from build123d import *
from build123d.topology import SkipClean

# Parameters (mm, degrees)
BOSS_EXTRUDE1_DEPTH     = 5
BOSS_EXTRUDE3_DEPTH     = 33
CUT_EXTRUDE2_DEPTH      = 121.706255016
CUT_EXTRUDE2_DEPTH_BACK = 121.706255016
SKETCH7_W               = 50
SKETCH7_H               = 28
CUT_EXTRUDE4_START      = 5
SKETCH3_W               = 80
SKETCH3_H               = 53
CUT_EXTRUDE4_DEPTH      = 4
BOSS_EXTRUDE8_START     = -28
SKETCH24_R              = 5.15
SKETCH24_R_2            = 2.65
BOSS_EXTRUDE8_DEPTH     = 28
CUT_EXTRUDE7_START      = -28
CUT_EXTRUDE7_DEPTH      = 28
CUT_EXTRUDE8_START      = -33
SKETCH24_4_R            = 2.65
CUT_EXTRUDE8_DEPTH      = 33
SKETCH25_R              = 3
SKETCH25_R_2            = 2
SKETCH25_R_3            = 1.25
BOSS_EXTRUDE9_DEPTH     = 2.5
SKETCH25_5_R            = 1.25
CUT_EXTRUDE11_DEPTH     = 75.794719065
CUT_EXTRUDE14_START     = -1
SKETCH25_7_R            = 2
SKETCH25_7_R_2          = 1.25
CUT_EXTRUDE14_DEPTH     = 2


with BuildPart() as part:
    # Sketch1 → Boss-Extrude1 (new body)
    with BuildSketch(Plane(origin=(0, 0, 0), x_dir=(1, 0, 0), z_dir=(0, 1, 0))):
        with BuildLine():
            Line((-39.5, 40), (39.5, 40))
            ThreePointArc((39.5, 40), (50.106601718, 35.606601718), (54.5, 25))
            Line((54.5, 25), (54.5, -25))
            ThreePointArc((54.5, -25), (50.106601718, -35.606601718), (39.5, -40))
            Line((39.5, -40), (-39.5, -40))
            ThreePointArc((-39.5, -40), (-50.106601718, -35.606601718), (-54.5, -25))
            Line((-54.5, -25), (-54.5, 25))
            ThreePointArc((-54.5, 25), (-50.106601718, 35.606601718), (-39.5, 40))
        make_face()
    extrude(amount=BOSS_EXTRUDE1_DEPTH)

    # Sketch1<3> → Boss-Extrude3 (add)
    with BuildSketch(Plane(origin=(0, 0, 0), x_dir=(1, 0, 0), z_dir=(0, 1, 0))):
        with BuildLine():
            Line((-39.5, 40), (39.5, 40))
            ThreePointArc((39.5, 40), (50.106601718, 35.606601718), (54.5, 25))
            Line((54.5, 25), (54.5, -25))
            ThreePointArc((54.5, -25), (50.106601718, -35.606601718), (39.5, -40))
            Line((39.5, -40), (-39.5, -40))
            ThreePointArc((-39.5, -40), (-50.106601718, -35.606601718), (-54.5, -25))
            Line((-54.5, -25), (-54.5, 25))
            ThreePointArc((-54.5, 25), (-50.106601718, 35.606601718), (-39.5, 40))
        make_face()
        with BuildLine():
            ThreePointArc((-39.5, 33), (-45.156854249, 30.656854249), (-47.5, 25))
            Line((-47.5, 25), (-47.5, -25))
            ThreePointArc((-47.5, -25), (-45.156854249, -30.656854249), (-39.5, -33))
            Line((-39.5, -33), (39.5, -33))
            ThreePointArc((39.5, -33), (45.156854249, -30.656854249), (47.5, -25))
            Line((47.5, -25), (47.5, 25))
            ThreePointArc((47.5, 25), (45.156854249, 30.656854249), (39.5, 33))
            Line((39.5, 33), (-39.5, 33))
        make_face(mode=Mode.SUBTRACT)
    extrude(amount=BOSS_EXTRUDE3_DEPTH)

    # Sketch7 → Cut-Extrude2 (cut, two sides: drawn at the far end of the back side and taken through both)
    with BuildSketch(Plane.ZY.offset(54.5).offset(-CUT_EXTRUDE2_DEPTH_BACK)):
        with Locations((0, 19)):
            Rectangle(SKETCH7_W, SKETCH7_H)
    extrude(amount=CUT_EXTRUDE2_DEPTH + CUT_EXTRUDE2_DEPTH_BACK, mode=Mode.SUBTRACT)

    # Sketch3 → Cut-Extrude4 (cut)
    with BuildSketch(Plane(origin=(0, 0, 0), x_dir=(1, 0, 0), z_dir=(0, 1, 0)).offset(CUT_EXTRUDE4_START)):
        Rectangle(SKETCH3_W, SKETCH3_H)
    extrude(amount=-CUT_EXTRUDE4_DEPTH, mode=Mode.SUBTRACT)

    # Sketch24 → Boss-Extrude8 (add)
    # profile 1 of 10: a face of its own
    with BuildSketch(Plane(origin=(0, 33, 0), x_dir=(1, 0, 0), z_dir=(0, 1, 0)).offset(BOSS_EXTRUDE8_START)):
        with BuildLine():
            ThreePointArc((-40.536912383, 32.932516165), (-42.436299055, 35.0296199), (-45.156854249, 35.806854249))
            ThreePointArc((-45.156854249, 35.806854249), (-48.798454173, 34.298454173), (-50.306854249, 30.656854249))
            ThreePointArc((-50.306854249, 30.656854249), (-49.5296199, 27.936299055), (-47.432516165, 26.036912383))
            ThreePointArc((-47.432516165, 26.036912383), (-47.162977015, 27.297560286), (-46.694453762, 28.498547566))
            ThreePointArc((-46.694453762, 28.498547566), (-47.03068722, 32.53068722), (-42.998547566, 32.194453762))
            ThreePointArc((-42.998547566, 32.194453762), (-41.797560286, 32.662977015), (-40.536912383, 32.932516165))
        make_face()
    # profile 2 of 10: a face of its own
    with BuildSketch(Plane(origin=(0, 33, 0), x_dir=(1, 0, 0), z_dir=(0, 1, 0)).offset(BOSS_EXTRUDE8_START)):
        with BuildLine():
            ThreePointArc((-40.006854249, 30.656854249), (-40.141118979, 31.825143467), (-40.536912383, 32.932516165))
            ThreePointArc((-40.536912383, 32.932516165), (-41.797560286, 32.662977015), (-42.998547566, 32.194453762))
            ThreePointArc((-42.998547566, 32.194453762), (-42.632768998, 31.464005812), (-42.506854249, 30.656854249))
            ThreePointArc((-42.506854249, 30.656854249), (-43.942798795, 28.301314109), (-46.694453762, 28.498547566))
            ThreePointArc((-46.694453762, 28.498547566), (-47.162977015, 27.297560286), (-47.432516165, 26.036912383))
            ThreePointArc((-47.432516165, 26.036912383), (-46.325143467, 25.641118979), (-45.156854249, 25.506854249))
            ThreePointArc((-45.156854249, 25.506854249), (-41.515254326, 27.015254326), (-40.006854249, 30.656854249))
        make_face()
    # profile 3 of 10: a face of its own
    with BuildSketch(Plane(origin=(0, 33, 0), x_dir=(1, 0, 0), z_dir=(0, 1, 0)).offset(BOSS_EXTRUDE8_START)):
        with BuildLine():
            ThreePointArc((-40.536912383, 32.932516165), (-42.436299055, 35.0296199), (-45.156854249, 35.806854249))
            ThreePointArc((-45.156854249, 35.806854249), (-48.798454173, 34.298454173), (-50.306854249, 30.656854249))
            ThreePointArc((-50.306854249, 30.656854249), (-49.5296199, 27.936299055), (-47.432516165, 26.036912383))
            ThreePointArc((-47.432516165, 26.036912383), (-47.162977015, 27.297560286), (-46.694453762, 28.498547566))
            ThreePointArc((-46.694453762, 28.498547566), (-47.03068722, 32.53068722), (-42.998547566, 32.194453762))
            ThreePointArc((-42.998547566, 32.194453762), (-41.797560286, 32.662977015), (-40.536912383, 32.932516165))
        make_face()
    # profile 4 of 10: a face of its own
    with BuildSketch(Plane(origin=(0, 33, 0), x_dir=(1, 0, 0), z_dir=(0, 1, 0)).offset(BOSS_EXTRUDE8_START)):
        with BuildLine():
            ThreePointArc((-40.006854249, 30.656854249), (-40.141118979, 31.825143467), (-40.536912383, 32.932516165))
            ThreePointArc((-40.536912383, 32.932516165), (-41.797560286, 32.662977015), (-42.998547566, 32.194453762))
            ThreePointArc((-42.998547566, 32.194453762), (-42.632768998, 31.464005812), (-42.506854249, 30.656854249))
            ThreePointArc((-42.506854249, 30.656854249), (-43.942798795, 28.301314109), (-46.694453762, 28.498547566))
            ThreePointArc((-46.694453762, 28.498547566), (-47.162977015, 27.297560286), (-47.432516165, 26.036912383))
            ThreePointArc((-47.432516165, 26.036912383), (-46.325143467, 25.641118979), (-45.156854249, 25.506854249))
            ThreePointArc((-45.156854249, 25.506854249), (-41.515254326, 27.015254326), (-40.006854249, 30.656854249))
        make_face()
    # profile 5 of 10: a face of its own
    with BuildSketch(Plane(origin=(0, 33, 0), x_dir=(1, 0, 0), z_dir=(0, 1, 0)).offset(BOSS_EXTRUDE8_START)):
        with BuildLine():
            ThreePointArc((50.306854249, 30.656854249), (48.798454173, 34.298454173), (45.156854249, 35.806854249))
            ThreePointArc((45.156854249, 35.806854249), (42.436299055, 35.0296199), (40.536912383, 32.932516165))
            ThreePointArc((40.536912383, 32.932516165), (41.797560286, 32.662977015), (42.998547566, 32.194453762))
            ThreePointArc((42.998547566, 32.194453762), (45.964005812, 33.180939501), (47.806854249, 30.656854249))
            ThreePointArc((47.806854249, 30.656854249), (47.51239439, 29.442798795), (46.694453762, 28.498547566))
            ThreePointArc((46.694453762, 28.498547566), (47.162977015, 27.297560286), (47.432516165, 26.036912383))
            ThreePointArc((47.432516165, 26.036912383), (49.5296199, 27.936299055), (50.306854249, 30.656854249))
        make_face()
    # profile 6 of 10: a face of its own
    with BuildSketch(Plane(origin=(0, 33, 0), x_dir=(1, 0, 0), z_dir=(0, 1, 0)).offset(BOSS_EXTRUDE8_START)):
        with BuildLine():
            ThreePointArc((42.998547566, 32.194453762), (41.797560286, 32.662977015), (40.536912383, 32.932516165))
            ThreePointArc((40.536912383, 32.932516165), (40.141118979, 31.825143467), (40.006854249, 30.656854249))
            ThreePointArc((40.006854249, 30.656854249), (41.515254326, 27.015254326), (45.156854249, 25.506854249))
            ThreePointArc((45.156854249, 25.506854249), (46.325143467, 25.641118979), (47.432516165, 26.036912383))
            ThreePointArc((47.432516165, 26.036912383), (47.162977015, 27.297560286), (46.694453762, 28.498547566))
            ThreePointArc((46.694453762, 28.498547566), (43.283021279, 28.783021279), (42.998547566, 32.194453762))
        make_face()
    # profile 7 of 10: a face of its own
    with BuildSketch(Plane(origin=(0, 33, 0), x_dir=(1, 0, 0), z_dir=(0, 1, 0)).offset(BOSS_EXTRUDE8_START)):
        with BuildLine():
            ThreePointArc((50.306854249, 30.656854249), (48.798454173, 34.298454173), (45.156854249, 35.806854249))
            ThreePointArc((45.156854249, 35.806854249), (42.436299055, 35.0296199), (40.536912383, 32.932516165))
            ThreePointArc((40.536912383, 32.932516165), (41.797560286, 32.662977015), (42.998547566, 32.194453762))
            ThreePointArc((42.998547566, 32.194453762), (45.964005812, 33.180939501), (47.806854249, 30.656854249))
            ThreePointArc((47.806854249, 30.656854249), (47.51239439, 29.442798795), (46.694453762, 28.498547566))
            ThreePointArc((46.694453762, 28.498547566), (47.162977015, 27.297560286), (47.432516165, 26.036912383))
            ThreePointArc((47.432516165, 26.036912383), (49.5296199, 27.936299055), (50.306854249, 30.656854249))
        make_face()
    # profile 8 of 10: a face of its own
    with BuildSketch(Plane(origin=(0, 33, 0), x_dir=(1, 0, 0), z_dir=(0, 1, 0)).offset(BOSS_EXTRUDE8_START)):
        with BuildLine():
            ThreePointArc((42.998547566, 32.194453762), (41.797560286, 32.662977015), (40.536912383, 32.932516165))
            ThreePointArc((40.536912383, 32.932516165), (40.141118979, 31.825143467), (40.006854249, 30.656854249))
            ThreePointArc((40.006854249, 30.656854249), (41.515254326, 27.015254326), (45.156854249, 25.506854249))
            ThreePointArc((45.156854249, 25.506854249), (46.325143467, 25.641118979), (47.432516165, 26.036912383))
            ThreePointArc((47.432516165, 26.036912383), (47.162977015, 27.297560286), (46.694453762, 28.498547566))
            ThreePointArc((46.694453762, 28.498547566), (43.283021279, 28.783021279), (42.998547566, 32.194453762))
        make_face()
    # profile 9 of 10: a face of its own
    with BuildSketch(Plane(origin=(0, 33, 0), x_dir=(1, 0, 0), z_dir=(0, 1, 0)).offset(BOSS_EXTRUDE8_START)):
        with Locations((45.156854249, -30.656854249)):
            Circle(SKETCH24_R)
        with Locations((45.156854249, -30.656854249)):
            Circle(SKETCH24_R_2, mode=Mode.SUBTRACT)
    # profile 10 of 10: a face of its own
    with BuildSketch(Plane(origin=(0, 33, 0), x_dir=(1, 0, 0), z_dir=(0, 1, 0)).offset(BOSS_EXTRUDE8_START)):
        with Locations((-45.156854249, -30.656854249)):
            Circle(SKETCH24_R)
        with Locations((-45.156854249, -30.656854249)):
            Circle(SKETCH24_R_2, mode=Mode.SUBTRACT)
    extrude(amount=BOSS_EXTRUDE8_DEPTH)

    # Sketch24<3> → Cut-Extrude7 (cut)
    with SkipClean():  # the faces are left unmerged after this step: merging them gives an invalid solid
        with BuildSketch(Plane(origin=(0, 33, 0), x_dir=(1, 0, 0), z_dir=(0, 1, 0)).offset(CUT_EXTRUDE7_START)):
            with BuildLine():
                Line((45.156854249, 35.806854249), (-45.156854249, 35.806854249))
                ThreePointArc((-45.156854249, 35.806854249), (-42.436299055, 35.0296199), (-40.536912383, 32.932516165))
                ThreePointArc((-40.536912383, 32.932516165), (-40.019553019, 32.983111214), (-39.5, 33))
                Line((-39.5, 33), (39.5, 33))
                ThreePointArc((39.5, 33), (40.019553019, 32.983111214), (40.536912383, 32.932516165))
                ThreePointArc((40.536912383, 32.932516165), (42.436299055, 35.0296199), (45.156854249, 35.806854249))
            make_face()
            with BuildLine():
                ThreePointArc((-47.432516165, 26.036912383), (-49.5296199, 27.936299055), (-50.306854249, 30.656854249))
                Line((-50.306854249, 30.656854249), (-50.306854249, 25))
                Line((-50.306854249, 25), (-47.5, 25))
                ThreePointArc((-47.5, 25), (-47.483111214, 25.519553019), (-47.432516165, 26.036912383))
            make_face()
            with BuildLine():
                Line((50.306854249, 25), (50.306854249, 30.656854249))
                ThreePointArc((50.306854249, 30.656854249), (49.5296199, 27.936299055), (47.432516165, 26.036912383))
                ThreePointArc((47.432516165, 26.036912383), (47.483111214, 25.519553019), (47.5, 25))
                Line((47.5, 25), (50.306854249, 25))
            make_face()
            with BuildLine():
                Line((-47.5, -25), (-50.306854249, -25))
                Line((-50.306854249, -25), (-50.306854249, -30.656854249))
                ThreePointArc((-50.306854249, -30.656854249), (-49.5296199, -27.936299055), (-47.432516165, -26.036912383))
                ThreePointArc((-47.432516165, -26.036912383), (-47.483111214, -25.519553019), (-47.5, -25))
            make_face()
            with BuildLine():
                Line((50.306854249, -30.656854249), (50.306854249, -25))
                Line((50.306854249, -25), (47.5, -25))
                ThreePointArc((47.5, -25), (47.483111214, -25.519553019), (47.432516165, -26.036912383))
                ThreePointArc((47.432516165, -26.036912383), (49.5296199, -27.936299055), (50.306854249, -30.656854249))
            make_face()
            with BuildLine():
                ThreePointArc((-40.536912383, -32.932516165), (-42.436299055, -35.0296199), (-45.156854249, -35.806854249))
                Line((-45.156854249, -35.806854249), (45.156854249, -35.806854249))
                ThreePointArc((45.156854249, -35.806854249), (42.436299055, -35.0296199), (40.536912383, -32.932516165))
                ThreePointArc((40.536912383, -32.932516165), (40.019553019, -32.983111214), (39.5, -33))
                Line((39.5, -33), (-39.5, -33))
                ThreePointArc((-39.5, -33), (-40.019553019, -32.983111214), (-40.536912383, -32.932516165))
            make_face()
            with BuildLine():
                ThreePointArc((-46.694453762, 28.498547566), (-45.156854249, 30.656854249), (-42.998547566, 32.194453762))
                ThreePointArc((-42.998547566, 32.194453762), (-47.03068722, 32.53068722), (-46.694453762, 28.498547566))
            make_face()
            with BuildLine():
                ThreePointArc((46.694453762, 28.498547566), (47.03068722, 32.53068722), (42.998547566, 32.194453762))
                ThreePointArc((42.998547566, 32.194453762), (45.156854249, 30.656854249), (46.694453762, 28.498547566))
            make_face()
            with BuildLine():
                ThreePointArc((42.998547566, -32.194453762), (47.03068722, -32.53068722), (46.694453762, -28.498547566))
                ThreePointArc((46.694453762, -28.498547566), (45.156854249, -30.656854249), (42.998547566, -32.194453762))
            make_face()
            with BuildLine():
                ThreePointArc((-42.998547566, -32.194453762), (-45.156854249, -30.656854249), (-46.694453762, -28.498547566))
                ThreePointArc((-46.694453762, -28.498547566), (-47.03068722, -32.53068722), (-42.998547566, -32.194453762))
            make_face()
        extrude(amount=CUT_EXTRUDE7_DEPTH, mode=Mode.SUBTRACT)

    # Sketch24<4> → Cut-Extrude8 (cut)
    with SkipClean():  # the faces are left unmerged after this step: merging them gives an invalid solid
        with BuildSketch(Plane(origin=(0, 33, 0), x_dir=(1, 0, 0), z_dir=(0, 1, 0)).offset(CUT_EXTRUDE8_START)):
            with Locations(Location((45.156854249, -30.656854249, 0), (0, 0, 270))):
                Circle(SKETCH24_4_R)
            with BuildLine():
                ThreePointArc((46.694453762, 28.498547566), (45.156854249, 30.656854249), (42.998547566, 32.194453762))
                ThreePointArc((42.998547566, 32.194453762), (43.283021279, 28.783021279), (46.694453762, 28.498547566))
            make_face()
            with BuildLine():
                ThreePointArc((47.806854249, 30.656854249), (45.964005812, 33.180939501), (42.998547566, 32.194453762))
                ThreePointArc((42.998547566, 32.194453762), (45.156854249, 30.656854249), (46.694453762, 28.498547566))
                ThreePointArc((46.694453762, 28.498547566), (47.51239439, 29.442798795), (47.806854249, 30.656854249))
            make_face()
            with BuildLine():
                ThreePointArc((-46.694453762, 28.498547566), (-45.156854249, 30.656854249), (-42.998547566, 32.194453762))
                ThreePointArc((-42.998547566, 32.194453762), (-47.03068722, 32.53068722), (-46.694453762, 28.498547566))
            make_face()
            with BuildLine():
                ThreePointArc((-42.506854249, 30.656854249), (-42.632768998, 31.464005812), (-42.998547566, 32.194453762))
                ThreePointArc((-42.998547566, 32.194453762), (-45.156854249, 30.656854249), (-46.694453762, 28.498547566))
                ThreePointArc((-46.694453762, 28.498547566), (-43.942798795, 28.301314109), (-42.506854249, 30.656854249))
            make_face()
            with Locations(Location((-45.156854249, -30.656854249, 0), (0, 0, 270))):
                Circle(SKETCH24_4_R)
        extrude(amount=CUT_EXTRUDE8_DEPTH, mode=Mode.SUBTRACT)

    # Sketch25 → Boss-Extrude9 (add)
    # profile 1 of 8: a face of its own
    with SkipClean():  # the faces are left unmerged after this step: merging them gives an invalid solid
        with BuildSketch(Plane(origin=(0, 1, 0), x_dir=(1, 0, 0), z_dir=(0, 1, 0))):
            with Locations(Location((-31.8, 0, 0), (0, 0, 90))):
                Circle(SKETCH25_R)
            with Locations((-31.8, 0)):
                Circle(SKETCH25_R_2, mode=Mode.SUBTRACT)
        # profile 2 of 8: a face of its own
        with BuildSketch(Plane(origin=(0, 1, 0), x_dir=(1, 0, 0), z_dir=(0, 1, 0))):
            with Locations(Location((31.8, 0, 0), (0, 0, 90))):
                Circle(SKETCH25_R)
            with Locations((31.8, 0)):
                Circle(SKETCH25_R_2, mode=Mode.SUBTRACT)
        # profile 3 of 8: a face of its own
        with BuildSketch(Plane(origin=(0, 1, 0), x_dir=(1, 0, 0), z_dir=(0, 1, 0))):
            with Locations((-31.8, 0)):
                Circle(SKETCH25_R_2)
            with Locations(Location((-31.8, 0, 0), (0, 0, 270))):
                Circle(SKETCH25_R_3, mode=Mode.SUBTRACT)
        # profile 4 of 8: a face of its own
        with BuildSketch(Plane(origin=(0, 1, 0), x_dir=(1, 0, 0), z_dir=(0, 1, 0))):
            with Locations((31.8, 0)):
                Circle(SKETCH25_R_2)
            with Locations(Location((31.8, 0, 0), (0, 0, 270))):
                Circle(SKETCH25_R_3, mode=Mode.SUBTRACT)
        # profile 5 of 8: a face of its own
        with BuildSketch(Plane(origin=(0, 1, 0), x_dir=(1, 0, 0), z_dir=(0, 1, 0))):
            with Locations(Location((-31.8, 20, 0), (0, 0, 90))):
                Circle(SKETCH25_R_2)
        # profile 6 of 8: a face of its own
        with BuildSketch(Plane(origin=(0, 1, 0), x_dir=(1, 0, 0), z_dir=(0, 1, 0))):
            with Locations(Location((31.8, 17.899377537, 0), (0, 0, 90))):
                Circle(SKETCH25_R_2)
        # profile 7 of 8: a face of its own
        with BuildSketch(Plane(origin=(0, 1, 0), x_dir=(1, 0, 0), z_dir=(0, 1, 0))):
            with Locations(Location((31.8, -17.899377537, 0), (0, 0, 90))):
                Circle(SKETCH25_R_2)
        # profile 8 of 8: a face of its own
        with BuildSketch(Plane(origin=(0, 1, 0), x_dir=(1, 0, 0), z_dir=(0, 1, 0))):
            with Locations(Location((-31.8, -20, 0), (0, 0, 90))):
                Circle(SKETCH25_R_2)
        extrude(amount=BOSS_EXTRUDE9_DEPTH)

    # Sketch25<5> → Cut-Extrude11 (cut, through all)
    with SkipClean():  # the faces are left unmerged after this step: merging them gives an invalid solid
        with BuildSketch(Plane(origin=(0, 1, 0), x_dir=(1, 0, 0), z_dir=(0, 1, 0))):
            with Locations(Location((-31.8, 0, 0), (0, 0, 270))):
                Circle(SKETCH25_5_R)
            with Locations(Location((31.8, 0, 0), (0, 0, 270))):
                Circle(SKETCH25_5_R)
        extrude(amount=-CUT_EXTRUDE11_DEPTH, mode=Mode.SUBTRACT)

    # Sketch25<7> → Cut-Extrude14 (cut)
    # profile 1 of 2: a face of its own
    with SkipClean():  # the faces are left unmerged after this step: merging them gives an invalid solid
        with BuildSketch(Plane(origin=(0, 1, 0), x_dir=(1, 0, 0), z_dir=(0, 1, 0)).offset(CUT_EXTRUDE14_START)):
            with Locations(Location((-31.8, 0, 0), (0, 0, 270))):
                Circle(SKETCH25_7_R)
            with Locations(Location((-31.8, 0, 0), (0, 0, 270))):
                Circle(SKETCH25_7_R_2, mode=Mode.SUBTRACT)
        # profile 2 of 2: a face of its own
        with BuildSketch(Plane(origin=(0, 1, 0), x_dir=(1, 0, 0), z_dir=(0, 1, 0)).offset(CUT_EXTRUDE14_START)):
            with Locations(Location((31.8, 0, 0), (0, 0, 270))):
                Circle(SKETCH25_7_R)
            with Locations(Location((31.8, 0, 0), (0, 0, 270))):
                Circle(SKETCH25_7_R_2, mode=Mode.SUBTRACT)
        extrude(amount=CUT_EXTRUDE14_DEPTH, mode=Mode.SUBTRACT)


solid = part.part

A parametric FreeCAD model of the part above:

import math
import FreeCAD as App
import Part
import Sketcher

doc = App.newDocument("Part")
body = doc.addObject("PartDesign::Body", "Body")

# Sketch on XZ plane
sketch1 = body.newObject("Sketcher::SketchObject", "Sketch")
sketch1.AttachmentSupport = (doc.getObject("XZ_Plane"), [""])
sketch1.MapMode = "FlatFace"
sketch1.addGeometry([
    Part.LineSegment(App.Vector(40, -40, 0), App.Vector(-40, -40, 0)),  # 0
    Part.ArcOfCircle(Part.Circle(App.Vector(-40, -25, 0), App.Vector(0, 0, 1), 15), math.radians(180), math.radians(270)),  # 1
    Part.LineSegment(App.Vector(-54, -25, 0), App.Vector(-54, 25, 0)),  # 2
    Part.ArcOfCircle(Part.Circle(App.Vector(-40, 25, 0), App.Vector(0, 0, 1), 15), math.radians(90), math.radians(180)),  # 3
    Part.LineSegment(App.Vector(-40, 40, 0), App.Vector(40, 40, 0)),  # 4
    Part.ArcOfCircle(Part.Circle(App.Vector(40, 25, 0), App.Vector(0, 0, 1), 15), math.radians(0), math.radians(90)),  # 5
    Part.LineSegment(App.Vector(54, 25, 0), App.Vector(54, -25, 0)),  # 6
    Part.ArcOfCircle(Part.Circle(App.Vector(40, -25, 0), App.Vector(0, 0, 1), 15), math.radians(-90), math.radians(0)),  # 7
], False)
sketch1.addConstraint([
    Sketcher.Constraint("Tangent", 0, 2, 1, 2),
    Sketcher.Constraint("Tangent", 1, 1, 2, 1),
    Sketcher.Constraint("Tangent", 2, 2, 3, 2),
    Sketcher.Constraint("Tangent", 3, 1, 4, 1),
    Sketcher.Constraint("Tangent", 4, 2, 5, 2),
    Sketcher.Constraint("Tangent", 5, 1, 6, 1),
    Sketcher.Constraint("Tangent", 6, 2, 7, 2),
    Sketcher.Constraint("Tangent", 7, 1, 0, 1),
    Sketcher.Constraint("Horizontal", 0),
    Sketcher.Constraint("Vertical", 2),
    Sketcher.Constraint("Horizontal", 4),
    Sketcher.Constraint("Vertical", 6),
    Sketcher.Constraint("Equal", 1, 3),
    Sketcher.Constraint("Equal", 3, 5),
    Sketcher.Constraint("Equal", 5, 7),
    Sketcher.Constraint("Symmetric", 1, 3, 5, 3, -1, 1),
    Sketcher.Constraint("Radius", 1, 15.0),
    Sketcher.Constraint("DistanceX", 0, 2, 0, 1, 79.0),
    Sketcher.Constraint("DistanceY", 2, 1, 2, 2, 50.0),
])
pad1 = body.newObject("PartDesign::Pad", "Pad")
pad1.Profile = sketch1
pad1.Length = 5
pad1.Reversed = True

# Sketch on XZ plane
sketch2 = body.newObject("Sketcher::SketchObject", "Sketch001")
sketch2.AttachmentSupport = (doc.getObject("XZ_Plane"), [""])
sketch2.MapMode = "FlatFace"
sketch2.addGeometry([
    Part.LineSegment(App.Vector(40, -40, 0), App.Vector(-40, -40, 0)),  # 0
    Part.ArcOfCircle(Part.Circle(App.Vector(-40, -25, 0), App.Vector(0, 0, 1), 15), math.radians(180), math.radians(270)),  # 1
    Part.LineSegment(App.Vector(-54, -25, 0), App.Vector(-54, 25, 0)),  # 2
    Part.ArcOfCircle(Part.Circle(App.Vector(-40, 25, 0), App.Vector(0, 0, 1), 15), math.radians(90), math.radians(180)),  # 3
    Part.LineSegment(App.Vector(-40, 40, 0), App.Vector(40, 40, 0)),  # 4
    Part.ArcOfCircle(Part.Circle(App.Vector(40, 25, 0), App.Vector(0, 0, 1), 15), math.radians(0), math.radians(90)),  # 5
    Part.LineSegment(App.Vector(54, 25, 0), App.Vector(54, -25, 0)),  # 6
    Part.ArcOfCircle(Part.Circle(App.Vector(40, -25, 0), App.Vector(0, 0, 1), 15), math.radians(-90), math.radians(0)),  # 7
    Part.LineSegment(App.Vector(-40, -33, 0), App.Vector(40, -33, 0)),  # 8
    Part.ArcOfCircle(Part.Circle(App.Vector(39, -25, 0), App.Vector(0, 0, 1), 8), math.radians(-90), math.radians(0)),  # 9
    Part.LineSegment(App.Vector(48, -25, 0), App.Vector(48, 25, 0)),  # 10
    Part.ArcOfCircle(Part.Circle(App.Vector(39, 25, 0), App.Vector(0, 0, 1), 8), math.radians(0), math.radians(90)),  # 11
    Part.LineSegment(App.Vector(40, 33, 0), App.Vector(-40, 33, 0)),  # 12
    Part.ArcOfCircle(Part.Circle(App.Vector(-39, 25, 0), App.Vector(0, 0, 1), 8), math.radians(90), math.radians(180)),  # 13
    Part.LineSegment(App.Vector(-48, 25, 0), App.Vector(-48, -25, 0)),  # 14
    Part.ArcOfCircle(Part.Circle(App.Vector(-39, -25, 0), App.Vector(0, 0, 1), 8), math.radians(-180), math.radians(-90)),  # 15
], False)
sketch2.addConstraint([
    Sketcher.Constraint("Tangent", 0, 2, 1, 2),
    Sketcher.Constraint("Tangent", 1, 1, 2, 1),
    Sketcher.Constraint("Tangent", 2, 2, 3, 2),
    Sketcher.Constraint("Tangent", 3, 1, 4, 1),
    Sketcher.Constraint("Tangent", 4, 2, 5, 2),
    Sketcher.Constraint("Tangent", 5, 1, 6, 1),
    Sketcher.Constraint("Tangent", 6, 2, 7, 2),
    Sketcher.Constraint("Tangent", 7, 1, 0, 1),
    Sketcher.Constraint("Tangent", 8, 2, 9, 1),
    Sketcher.Constraint("Tangent", 9, 2, 10, 1),
    Sketcher.Constraint("Tangent", 10, 2, 11, 1),
    Sketcher.Constraint("Tangent", 11, 2, 12, 1),
    Sketcher.Constraint("Tangent", 12, 2, 13, 1),
    Sketcher.Constraint("Tangent", 13, 2, 14, 1),
    Sketcher.Constraint("Tangent", 14, 2, 15, 1),
    Sketcher.Constraint("Tangent", 15, 2, 8, 1),
    Sketcher.Constraint("Horizontal", 0),
    Sketcher.Constraint("Vertical", 2),
    Sketcher.Constraint("Horizontal", 4),
    Sketcher.Constraint("Vertical", 6),
    Sketcher.Constraint("Horizontal", 8),
    Sketcher.Constraint("Vertical", 10),
    Sketcher.Constraint("Horizontal", 12),
    Sketcher.Constraint("Vertical", 14),
    Sketcher.Constraint("Coincident", 9, 3, 7, 3),
    Sketcher.Constraint("Coincident", 11, 3, 5, 3),
    Sketcher.Constraint("Coincident", 13, 3, 3, 3),
    Sketcher.Constraint("Equal", 1, 3),
    Sketcher.Constraint("Equal", 3, 5),
    Sketcher.Constraint("Equal", 5, 7),
    Sketcher.Constraint("Equal", 13, 15),
    Sketcher.Constraint("Symmetric", 1, 3, 5, 3, -1, 1),
    Sketcher.Constraint("Radius", 1, 15.0),
    Sketcher.Constraint("Radius", 9, 8.0),
    Sketcher.Constraint("DistanceX", 0, 2, 0, 1, 79.0),
    Sketcher.Constraint("DistanceY", 2, 1, 2, 2, 50.0),
])
pad2 = body.newObject("PartDesign::Pad", "Pad001")
pad2.Profile = sketch2
pad2.Length = 33
pad2.Reversed = True

# Sketch on YZ plane
sketch3 = body.newObject("Sketcher::SketchObject", "Sketch002")
sketch3.AttachmentSupport = (doc.getObject("YZ_Plane"), [""])
sketch3.MapMode = "FlatFace"
sketch3.AttachmentOffset = App.Placement(App.Vector(0, 0, -54.5), App.Rotation())
sketch3.addGeometry([
    Part.LineSegment(App.Vector(33, -25, 0), App.Vector(5, -25, 0)),
    Part.LineSegment(App.Vector(5, -25, 0), App.Vector(5, 25, 0)),
    Part.LineSegment(App.Vector(5, 25, 0), App.Vector(33, 25, 0)),
    Part.LineSegment(App.Vector(33, 25, 0), App.Vector(33, -25, 0)),
], False)
sketch3.addConstraint([
    Sketcher.Constraint("Coincident", 0, 2, 1, 1),
    Sketcher.Constraint("Coincident", 1, 2, 2, 1),
    Sketcher.Constraint("Coincident", 2, 2, 3, 1),
    Sketcher.Constraint("Coincident", 3, 2, 0, 1),
    Sketcher.Constraint("Horizontal", 0),
    Sketcher.Constraint("Vertical", 1),
    Sketcher.Constraint("Horizontal", 2),
    Sketcher.Constraint("Vertical", 3),
    Sketcher.Constraint("DistanceX", 0, 2, 0, 1, 28.0),
    Sketcher.Constraint("DistanceY", 1, 1, 1, 2, 50.0),
    Sketcher.Constraint("DistanceX", -1, 1, 0, 2, 5.0),
    Sketcher.Constraint("DistanceY", 0, 2, -1, 1, 25.0),
])
pocket1 = body.newObject("PartDesign::Pocket", "Pocket")
pocket1.Profile = sketch3
pocket1.Type = "ThroughAll"
pocket1.Midplane = True

# Sketch on XZ plane
sketch4 = body.newObject("Sketcher::SketchObject", "Sketch003")
sketch4.AttachmentSupport = (doc.getObject("XZ_Plane"), [""])
sketch4.MapMode = "FlatFace"
sketch4.AttachmentOffset = App.Placement(App.Vector(0, 0, -5), App.Rotation())
sketch4.addGeometry([
    Part.LineSegment(App.Vector(-40, -26, 0), App.Vector(-40, 26, 0)),
    Part.LineSegment(App.Vector(-40, 26, 0), App.Vector(40, 26, 0)),
    Part.LineSegment(App.Vector(40, 26, 0), App.Vector(40, -26, 0)),
    Part.LineSegment(App.Vector(40, -26, 0), App.Vector(-40, -26, 0)),
], False)
sketch4.addConstraint([
    Sketcher.Constraint("Coincident", 0, 2, 1, 1),
    Sketcher.Constraint("Coincident", 1, 2, 2, 1),
    Sketcher.Constraint("Coincident", 2, 2, 3, 1),
    Sketcher.Constraint("Coincident", 3, 2, 0, 1),
    Sketcher.Constraint("Vertical", 0),
    Sketcher.Constraint("Horizontal", 1),
    Sketcher.Constraint("Vertical", 2),
    Sketcher.Constraint("Horizontal", 3),
    Sketcher.Constraint("Symmetric", 0, 2, 2, 2, -1, 1),
    Sketcher.Constraint("DistanceX", 1, 1, 1, 2, 80.0),
    Sketcher.Constraint("DistanceY", 0, 1, 0, 2, 53.0),
])
pocket2 = body.newObject("PartDesign::Pocket", "Pocket001")
pocket2.Profile = sketch4
pocket2.Length = 4
pocket2.Reversed = True

# Sketch on XZ plane
sketch5 = body.newObject("Sketcher::SketchObject", "Sketch004")
sketch5.AttachmentSupport = (doc.getObject("XZ_Plane"), [""])
sketch5.MapMode = "FlatFace"
sketch5.AttachmentOffset = App.Placement(App.Vector(0, 0, -5), App.Rotation())
sketch5.addGeometry([
    Part.ArcOfCircle(Part.Circle(App.Vector(-45.2, -30.7, 0), App.Vector(0, 0, 1), 5.1), math.radians(-90), math.radians(-26)),  # 0
    Part.ArcOfCircle(Part.Circle(App.Vector(-45.2, -30.7, 0), App.Vector(0, 0, 1), 5.1), math.radians(180), math.radians(270)),  # 1
    Part.ArcOfCircle(Part.Circle(App.Vector(-45.2, -30.7, 0), App.Vector(0, 0, 1), 5.1), math.radians(116), math.radians(180)),  # 2
    Part.ArcOfCircle(Part.Circle(App.Vector(-45.2, -30.7, 0), App.Vector(0, 0, 1), 5.2), math.radians(90), math.radians(116)),  # 3
    Part.ArcOfCircle(Part.Circle(App.Vector(-45.2, -30.7, 0), App.Vector(0, 0, 1), 5.2), math.radians(0), math.radians(90)),  # 4
    Part.ArcOfCircle(Part.Circle(App.Vector(-45.2, -30.7, 0), App.Vector(0, 0, 1), 5.2), math.radians(-26), math.radians(0)),  # 5
    Part.ArcOfCircle(Part.Circle(App.Vector(-45.2, -30.7, 0), App.Vector(0, 0, 1), 2.6), math.radians(125), math.radians(325)),  # 6
    Part.ArcOfCircle(Part.Circle(App.Vector(-45.2, -30.7, 0), App.Vector(0, 0, 1), 2.7), math.radians(-35), math.radians(0)),  # 7
    Part.ArcOfCircle(Part.Circle(App.Vector(-45.2, -30.7, 0), App.Vector(0, 0, 1), 2.7), math.radians(0), math.radians(125)),  # 8
    Part.ArcOfCircle(Part.Circle(App.Vector(45.2, -30.7, 0), App.Vector(0, 0, 1), 5.1), math.radians(-90), math.radians(0)),  # 9
    Part.ArcOfCircle(Part.Circle(App.Vector(45.2, -30.7, 0), App.Vector(0, 0, 1), 5.1), math.radians(-154), math.radians(-90)),  # 10
    Part.ArcOfCircle(Part.Circle(App.Vector(45.2, -30.7, 0), App.Vector(0, 0, 1), 5.2), math.radians(-180), math.radians(-154)),  # 11
    Part.ArcOfCircle(Part.Circle(App.Vector(45.2, -30.7, 0), App.Vector(0, 0, 1), 5.2), math.radians(90), math.radians(180)),  # 12
    Part.ArcOfCircle(Part.Circle(App.Vector(45.2, -30.7, 0), App.Vector(0, 0, 1), 5.2), math.radians(64), math.radians(90)),  # 13
    Part.ArcOfCircle(Part.Circle(App.Vector(45.2, -30.7, 0), App.Vector(0, 0, 1), 5.1), math.radians(0), math.radians(64)),  # 14
    Part.ArcOfCircle(Part.Circle(App.Vector(45.2, -30.7, 0), App.Vector(0, 0, 1), 2.6), math.radians(-145), math.radians(0)),  # 15
    Part.ArcOfCircle(Part.Circle(App.Vector(45.2, -30.7, 0), App.Vector(0, 0, 1), 2.6), math.radians(0), math.radians(55)),  # 16
    Part.ArcOfCircle(Part.Circle(App.Vector(45.2, -30.7, 0), App.Vector(0, 0, 1), 2.6), math.radians(55), math.radians(215)),  # 17
    Part.Circle(App.Vector(45.2, 30.7, 0), App.Vector(0, 0, 1), 5.2),  # 18
    Part.Circle(App.Vector(45.2, 30.7, 0), App.Vector(0, 0, 1), 2.6),  # 19
    Part.Circle(App.Vector(-45.2, 30.7, 0), App.Vector(0, 0, 1), 5.2),  # 20
    Part.Circle(App.Vector(-45.2, 30.7, 0), App.Vector(0, 0, 1), 2.6),  # 21
], False)
sketch5.addConstraint([
    Sketcher.Constraint("Tangent", 0, 1, 1, 2),
    Sketcher.Constraint("Tangent", 1, 1, 2, 2),
    Sketcher.Constraint("Tangent", 2, 1, 3, 2),
    Sketcher.Constraint("Tangent", 3, 1, 4, 2),
    Sketcher.Constraint("Tangent", 4, 1, 5, 2),
    Sketcher.Constraint("Tangent", 5, 1, 0, 2),
    Sketcher.Constraint("Tangent", 6, 2, 7, 1),
    Sketcher.Constraint("Tangent", 7, 2, 8, 1),
    Sketcher.Constraint("Tangent", 8, 2, 6, 1),
    Sketcher.Constraint("Tangent", 9, 1, 10, 2),
    Sketcher.Constraint("Tangent", 10, 1, 11, 2),
    Sketcher.Constraint("Tangent", 11, 1, 12, 2),
    Sketcher.Constraint("Tangent", 12, 1, 13, 2),
    Sketcher.Constraint("Tangent", 13, 1, 14, 2),
    Sketcher.Constraint("Tangent", 14, 1, 9, 2),
    Sketcher.Constraint("Tangent", 15, 2, 16, 1),
    Sketcher.Constraint("Tangent", 16, 2, 17, 1),
    Sketcher.Constraint("Tangent", 17, 2, 15, 1),
    Sketcher.Constraint("Coincident", 2, 3, 0, 3),
    Sketcher.Constraint("Coincident", 6, 3, 0, 3),
    Sketcher.Constraint("Coincident", 11, 3, 9, 3),
    Sketcher.Constraint("Coincident", 15, 3, 9, 3),
    Sketcher.Constraint("Coincident", 19, 3, 18, 3),
    Sketcher.Constraint("Coincident", 21, 3, 20, 3),
    Sketcher.Constraint("Equal", 2, 3),
    Sketcher.Constraint("Equal", 5, 9),
    Sketcher.Constraint("Equal", 11, 12),
    Sketcher.Constraint("Equal", 8, 15),
    Sketcher.Constraint("Equal", 14, 18),
    Sketcher.Constraint("Equal", 17, 19),
    Sketcher.Constraint("Equal", 18, 20),
    Sketcher.Constraint("Equal", 19, 21),
    Sketcher.Constraint("Symmetric", 0, 3, 18, 3, -1, 1),
    Sketcher.Constraint("Symmetric", 9, 3, 20, 3, -1, 1),
    Sketcher.Constraint("Symmetric", 0, 3, 9, 3, -2),
    Sketcher.Constraint("Horizontal", 17, 3, 1, 1),
    Sketcher.Constraint("Horizontal", 1, 1, 4, 1),
    Sketcher.Constraint("Horizontal", 4, 1, 7, 2),
    Sketcher.Constraint("Horizontal", 5, 1, 10, 1),
    Sketcher.Constraint("Horizontal", 7, 2, 11, 1),
    Sketcher.Constraint("Horizontal", 2, 1, 13, 1),
    Sketcher.Constraint("Horizontal", 11, 1, 14, 1),
    Sketcher.Constraint("Horizontal", 14, 1, 15, 2),
    Sketcher.Constraint("Horizontal", 8, 2, 16, 2),
    Sketcher.Constraint("Horizontal", 6, 2, 17, 2),
    Sketcher.Constraint("Vertical", 21, 3, 0, 1),
    Sketcher.Constraint("Vertical", 0, 1, 3, 1),
    Sketcher.Constraint("Vertical", 19, 3, 9, 1),
    Sketcher.Constraint("Vertical", 9, 1, 12, 1),
    Sketcher.Constraint("Diameter", 18, 10.3),
    Sketcher.Constraint("Diameter", 19, 5.3),
    Sketcher.Constraint("DistanceY", 6, 2, 3, 3, 1.537599),
    Sketcher.Constraint("DistanceX", 8, 2, 5, 3, 1.537599),
    Sketcher.Constraint("DistanceX", 3, 3, 9, 3, 90.313708),
    Sketcher.Constraint("DistanceY", 11, 3, 18, 3, 61.313708),
    Sketcher.Constraint("DistanceX", 2, 1, 5, 3, 2.275662),
    Sketcher.Constraint("DistanceX", 5, 1, 4, 1, 0.530058),
])
pad3 = body.newObject("PartDesign::Pad", "Pad002")
pad3.Profile = sketch5
pad3.Length = 28
pad3.Reversed = True

# Sketch on XZ plane
sketch6 = body.newObject("Sketcher::SketchObject", "Sketch005")
sketch6.AttachmentSupport = (doc.getObject("XZ_Plane"), [""])
sketch6.MapMode = "FlatFace"
sketch6.AttachmentOffset = App.Placement(App.Vector(0, 0, -5), App.Rotation())
sketch6.addGeometry([
    Part.LineSegment(App.Vector(45.2, -35.8, 0), App.Vector(-45.2, -35.8, 0)),  # 0
    Part.ArcOfCircle(Part.Circle(App.Vector(-45.2, -30.7, 0), App.Vector(0, 0, 1), 5.1), math.radians(-90), math.radians(-26)),  # 1
    Part.ArcOfCircle(Part.Circle(App.Vector(-39.5, -25, 0), App.Vector(0, 0, 1), 8), math.radians(-97.45), math.radians(-90)),  # 2
    Part.LineSegment(App.Vector(-39.5, -33, 0), App.Vector(39.5, -33, 0)),  # 3
    Part.ArcOfCircle(Part.Circle(App.Vector(39.5, -25, 0), App.Vector(0, 0, 1), 8), math.radians(-90), math.radians(-82.55)),  # 4
    Part.ArcOfCircle(Part.Circle(App.Vector(45.2, -30.7, 0), App.Vector(0, 0, 1), 5.1), math.radians(-154), math.radians(-90)),  # 5
    Part.ArcOfCircle(Part.Circle(App.Vector(-45.2, -30.7, 0), App.Vector(0, 0, 1), 5.1), math.radians(116), math.radians(180)),  # 6
    Part.LineSegment(App.Vector(-50.3, -30.7, 0), App.Vector(-50.3, -25, 0)),  # 7
    Part.LineSegment(App.Vector(-50.3, -25, 0), App.Vector(-47.5, -25, 0)),  # 8
    Part.ArcOfCircle(Part.Circle(App.Vector(-39.5, -25, 0), App.Vector(0, 0, 1), 8), math.radians(-180), math.radians(-172.55)),  # 9
    Part.LineSegment(App.Vector(50.3, -25, 0), App.Vector(50.3, -30.7, 0)),  # 10
    Part.ArcOfCircle(Part.Circle(App.Vector(45.2, -30.7, 0), App.Vector(0, 0, 1), 5.1), math.radians(0), math.radians(64)),  # 11
    Part.ArcOfCircle(Part.Circle(App.Vector(39.5, -25, 0), App.Vector(0, 0, 1), 8), math.radians(-7.45), math.radians(0)),  # 12
    Part.LineSegment(App.Vector(47.5, -25, 0), App.Vector(50.3, -25, 0)),  # 13
    Part.LineSegment(App.Vector(-47.5, 25, 0), App.Vector(-50.3, 25, 0)),  # 14
    Part.LineSegment(App.Vector(-50.3, 25, 0), App.Vector(-50.3, 30.7, 0)),  # 15
    Part.ArcOfCircle(Part.Circle(App.Vector(-45.2, 30.7, 0), App.Vector(0, 0, 1), 5.1), math.radians(180), math.radians(244)),  # 16
    Part.ArcOfCircle(Part.Circle(App.Vector(-39.5, 25, 0), App.Vector(0, 0, 1), 8), math.radians(172.55), math.radians(180)),  # 17
    Part.LineSegment(App.Vector(50.3, 30.7, 0), App.Vector(50.3, 25, 0)),  # 18
    Part.LineSegment(App.Vector(50.3, 25, 0), App.Vector(47.5, 25, 0)),  # 19
    Part.ArcOfCircle(Part.Circle(App.Vector(39.5, 25, 0), App.Vector(0, 0, 1), 8), math.radians(0), math.radians(7.45)),  # 20
    Part.ArcOfCircle(Part.Circle(App.Vector(45.2, 30.7, 0), App.Vector(0, 0, 1), 5.1), math.radians(-64), math.radians(0)),  # 21
    Part.ArcOfCircle(Part.Circle(App.Vector(-45.2, 30.7, 0), App.Vector(0, 0, 1), 5.1), math.radians(26), math.radians(90)),  # 22
    Part.LineSegment(App.Vector(-45.2, 35.8, 0), App.Vector(45.2, 35.8, 0)),  # 23
    Part.ArcOfCircle(Part.Circle(App.Vector(45.2, 30.7, 0), App.Vector(0, 0, 1), 5.1), math.radians(90), math.radians(154)),  # 24
    Part.ArcOfCircle(Part.Circle(App.Vector(39.5, 25, 0), App.Vector(0, 0, 1), 8), math.radians(82.55), math.radians(90)),  # 25
    Part.LineSegment(App.Vector(39.5, 33, 0), App.Vector(-39.5, 33, 0)),  # 26
    Part.ArcOfCircle(Part.Circle(App.Vector(-39.5, 25, 0), App.Vector(0, 0, 1), 8), math.radians(90), math.radians(97.45)),  # 27
    Part.ArcOfCircle(Part.Circle(App.Vector(-39.5, -25, 0), App.Vector(0, 0, 1), 8), math.radians(-154), math.radians(-116)),  # 28
    Part.ArcOfCircle(Part.Circle(App.Vector(-45.2, -30.7, 0), App.Vector(0, 0, 1), 2.6), math.radians(125), math.radians(325)),  # 29
    Part.ArcOfCircle(Part.Circle(App.Vector(45.2, -30.7, 0), App.Vector(0, 0, 1), 2.6), math.radians(-145), math.radians(55)),  # 30
    Part.ArcOfCircle(Part.Circle(App.Vector(39.5, -25, 0), App.Vector(0, 0, 1), 8), math.radians(-64), math.radians(-26)),  # 31
    Part.ArcOfCircle(Part.Circle(App.Vector(45.2, 30.7, 0), App.Vector(0, 0, 1), 2.6), math.radians(-55), math.radians(145)),  # 32
    Part.ArcOfCircle(Part.Circle(App.Vector(39.5, 25, 0), App.Vector(0, 0, 1), 8), math.radians(26), math.radians(64)),  # 33
    Part.ArcOfCircle(Part.Circle(App.Vector(-39.5, 25, 0), App.Vector(0, 0, 1), 8), math.radians(116), math.radians(154)),  # 34
    Part.ArcOfCircle(Part.Circle(App.Vector(-45.2, 30.7, 0), App.Vector(0, 0, 1), 2.6), math.radians(35), math.radians(235)),  # 35
], False)
sketch6.addConstraint([
    Sketcher.Constraint("Tangent", 0, 2, 1, 1),
    Sketcher.Constraint("Coincident", 1, 2, 2, 1),
    Sketcher.Constraint("Tangent", 2, 2, 3, 1),
    Sketcher.Constraint("Tangent", 3, 2, 4, 1),
    Sketcher.Constraint("Coincident", 4, 2, 5, 1),
    Sketcher.Constraint("Tangent", 5, 2, 0, 1),
    Sketcher.Constraint("Tangent", 6, 2, 7, 1),
    Sketcher.Constraint("Coincident", 7, 2, 8, 1),
    Sketcher.Constraint("Coincident", 8, 2, 9, 1),
    Sketcher.Constraint("Coincident", 9, 2, 6, 1),
    Sketcher.Constraint("Tangent", 10, 2, 11, 1),
    Sketcher.Constraint("Coincident", 11, 2, 12, 1),
    Sketcher.Constraint("Coincident", 12, 2, 13, 1),
    Sketcher.Constraint("Coincident", 13, 2, 10, 1),
    Sketcher.Constraint("Coincident", 14, 2, 15, 1),
    Sketcher.Constraint("Tangent", 15, 2, 16, 1),
    Sketcher.Constraint("Coincident", 16, 2, 17, 1),
    Sketcher.Constraint("Coincident", 17, 2, 14, 1),
    Sketcher.Constraint("Coincident", 18, 2, 19, 1),
    Sketcher.Constraint("Coincident", 19, 2, 20, 1),
    Sketcher.Constraint("Coincident", 20, 2, 21, 1),
    Sketcher.Constraint("Tangent", 21, 2, 18, 1),
    Sketcher.Constraint("Tangent", 22, 2, 23, 1),
    Sketcher.Constraint("Tangent", 23, 2, 24, 1),
    Sketcher.Constraint("Coincident", 24, 2, 25, 1),
    Sketcher.Constraint("Tangent", 25, 2, 26, 1),
    Sketcher.Constraint("Tangent", 26, 2, 27, 1),
    Sketcher.Constraint("Coincident", 27, 2, 22, 1),
    Sketcher.Constraint("Coincident", 28, 1, 29, 1),
    Sketcher.Constraint("Coincident", 29, 2, 28, 2),
    Sketcher.Constraint("Coincident", 30, 1, 31, 1),
    Sketcher.Constraint("Coincident", 31, 2, 30, 2),
    Sketcher.Constraint("Coincident", 32, 1, 33, 1),
    Sketcher.Constraint("Coincident", 33, 2, 32, 2),
    Sketcher.Constraint("Coincident", 34, 1, 35, 1),
    Sketcher.Constraint("Coincident", 35, 2, 34, 2),
    Sketcher.Constraint("Horizontal", 0),
    Sketcher.Constraint("Horizontal", 3),
    Sketcher.Constraint("Vertical", 7),
    Sketcher.Constraint("Horizontal", 8),
    Sketcher.Constraint("Vertical", 10),
    Sketcher.Constraint("Horizontal", 13),
    Sketcher.Constraint("Horizontal", 14),
    Sketcher.Constraint("Vertical", 15),
    Sketcher.Constraint("Vertical", 18),
    Sketcher.Constraint("Horizontal", 19),
    Sketcher.Constraint("Horizontal", 23),
    Sketcher.Constraint("Horizontal", 26),
    Sketcher.Constraint("Coincident", 6, 3, 1, 3),
    Sketcher.Constraint("Coincident", 9, 3, 2, 3),
    Sketcher.Constraint("Coincident", 11, 3, 5, 3),
    Sketcher.Constraint("Coincident", 12, 3, 4, 3),
    Sketcher.Constraint("Coincident", 22, 3, 16, 3),
    Sketcher.Constraint("Coincident", 24, 3, 21, 3),
    Sketcher.Constraint("Coincident", 25, 3, 20, 3),
    Sketcher.Constraint("Coincident", 27, 3, 17, 3),
    Sketcher.Constraint("Coincident", 28, 3, 2, 3),
    Sketcher.Constraint("Coincident", 29, 3, 1, 3),
    Sketcher.Constraint("Coincident", 30, 3, 5, 3),
    Sketcher.Constraint("Coincident", 31, 3, 4, 3),
    Sketcher.Constraint("Coincident", 32, 3, 21, 3),
    Sketcher.Constraint("Coincident", 33, 3, 20, 3),
    Sketcher.Constraint("Coincident", 34, 3, 17, 3),
    Sketcher.Constraint("Coincident", 35, 3, 16, 3),
    Sketcher.Constraint("Equal", 2, 4),
    Sketcher.Constraint("Equal", 1, 5),
    Sketcher.Constraint("Equal", 5, 6),
    Sketcher.Constraint("Equal", 4, 9),
    Sketcher.Constraint("Equal", 6, 11),
    Sketcher.Constraint("Equal", 9, 12),
    Sketcher.Constraint("Equal", 11, 16),
    Sketcher.Constraint("Equal", 12, 17),
    Sketcher.Constraint("Equal", 17, 20),
    Sketcher.Constraint("Equal", 16, 21),
    Sketcher.Constraint("Equal", 21, 22),
    Sketcher.Constraint("Equal", 22, 24),
    Sketcher.Constraint("Equal", 20, 25),
    Sketcher.Constraint("Equal", 25, 27),
    Sketcher.Constraint("Equal", 27, 28),
    Sketcher.Constraint("Equal", 29, 30),
    Sketcher.Constraint("Equal", 28, 31),
    Sketcher.Constraint("Equal", 30, 32),
    Sketcher.Constraint("Equal", 31, 33),
    Sketcher.Constraint("Equal", 33, 34),
    Sketcher.Constraint("Equal", 32, 35),
    Sketcher.Constraint("Symmetric", 5, 3, 16, 3, -1, 1),
    Sketcher.Constraint("Symmetric", 4, 3, 17, 3, -1, 1),
    Sketcher.Constraint("Symmetric", 7, 2, 18, 2, -1, 1),
    Sketcher.Constraint("Symmetric", 1, 2, 4, 2, -2),
    Sketcher.Constraint("Symmetric", 17, 2, 19, 2, -2),
    Sketcher.Constraint("Horizontal", 31, 3, 7, 2),
    Sketcher.Constraint("Horizontal", 8, 2, 12, 2),
    Sketcher.Constraint("Radius", 2, 8.0),
    Sketcher.Constraint("DistanceX", 3, 1, 3, 2, 79.0),
    Sketcher.Constraint("Radius", 1, 5.15),
    Sketcher.Constraint("Radius", 29, 2.65),
    Sketcher.Constraint("DistanceY", 2, 3, -1, 1, 25.0),
    Sketcher.Constraint("DistanceX", 0, 2, 0, 1, 90.313708),
    Sketcher.Constraint("DistanceX", 28, 1, 6, 3, 1.5376),
])
pocket3 = body.newObject("PartDesign::Pocket", "Pocket002")
pocket3.Profile = sketch6
pocket3.Length = 28

# Sketch on XZ plane
sketch7 = body.newObject("Sketcher::SketchObject", "Sketch006")
sketch7.AttachmentSupport = (doc.getObject("XZ_Plane"), [""])
sketch7.MapMode = "FlatFace"
sketch7.addGeometry([
    Part.Circle(App.Vector(45.2, 30.7, 0), App.Vector(0, 0, 1), 2.6),  # 0
    Part.ArcOfCircle(Part.Circle(App.Vector(39.5, -25, 0), App.Vector(0, 0, 1), 8), math.radians(-64), math.radians(-26)),  # 1
    Part.ArcOfCircle(Part.Circle(App.Vector(45.2, -30.7, 0), App.Vector(0, 0, 1), 2.6), math.radians(55), math.radians(215)),  # 2
    Part.ArcOfCircle(Part.Circle(App.Vector(45.2, -30.7, 0), App.Vector(0, 0, 1), 2.6), math.radians(-145), math.radians(0)),  # 3
    Part.ArcOfCircle(Part.Circle(App.Vector(39.5, -25, 0), App.Vector(0, 0, 1), 8), math.radians(-64), math.radians(-26)),  # 4
    Part.ArcOfCircle(Part.Circle(App.Vector(45.2, -30.7, 0), App.Vector(0, 0, 1), 2.6), math.radians(0), math.radians(55)),  # 5
    Part.ArcOfCircle(Part.Circle(App.Vector(-39.5, -25, 0), App.Vector(0, 0, 1), 8), math.radians(-154), math.radians(-116)),  # 6
    Part.ArcOfCircle(Part.Circle(App.Vector(-45.2, -30.7, 0), App.Vector(0, 0, 1), 2.6), math.radians(125), math.radians(325)),  # 7
    Part.ArcOfCircle(Part.Circle(App.Vector(-45.2, -30.7, 0), App.Vector(0, 0, 1), 2.7), math.radians(-35), math.radians(0)),  # 8
    Part.ArcOfCircle(Part.Circle(App.Vector(-39.5, -25, 0), App.Vector(0, 0, 1), 8), math.radians(-154), math.radians(-116)),  # 9
    Part.ArcOfCircle(Part.Circle(App.Vector(-45.2, -30.7, 0), App.Vector(0, 0, 1), 2.7), math.radians(0), math.radians(125)),  # 10
    Part.Circle(App.Vector(-45.2, 30.7, 0), App.Vector(0, 0, 1), 2.6),  # 11
], False)
sketch7.addConstraint([
    Sketcher.Constraint("Coincident", 1, 1, 2, 2),
    Sketcher.Constraint("Coincident", 2, 1, 1, 2),
    Sketcher.Constraint("Coincident", 3, 1, 4, 1),
    Sketcher.Constraint("Coincident", 4, 2, 5, 2),
    Sketcher.Constraint("Tangent", 5, 1, 3, 2),
    Sketcher.Constraint("Coincident", 6, 1, 7, 1),
    Sketcher.Constraint("Coincident", 7, 2, 6, 2),
    Sketcher.Constraint("Coincident", 8, 1, 9, 2),
    Sketcher.Constraint("Coincident", 9, 1, 10, 2),
    Sketcher.Constraint("Tangent", 10, 1, 8, 2),
    Sketcher.Constraint("Coincident", 3, 3, 2, 3),
    Sketcher.Constraint("Coincident", 4, 3, 1, 3),
    Sketcher.Constraint("Coincident", 8, 3, 7, 3),
    Sketcher.Constraint("Coincident", 9, 3, 6, 3),
    Sketcher.Constraint("Coincident", 3, 1, 1, 1),
    Sketcher.Constraint("Coincident", 8, 1, 7, 2),
    Sketcher.Constraint("Equal", 0, 2),
    Sketcher.Constraint("Equal", 3, 5),
    Sketcher.Constraint("Equal", 4, 6),
    Sketcher.Constraint("Equal", 5, 7),
    Sketcher.Constraint("Equal", 8, 10),
    Sketcher.Constraint("Equal", 10, 11),
    Sketcher.Constraint("Symmetric", 0, 3, 7, 3, -1, 1),
    Sketcher.Constraint("Symmetric", 2, 3, 11, 3, -1, 1),
    Sketcher.Constraint("Symmetric", 1, 3, 6, 3, -2),
    Sketcher.Constraint("Symmetric", 2, 3, 7, 3, -2),
    Sketcher.Constraint("Horizontal", 10, 3, 5, 1),
    Sketcher.Constraint("Horizontal", 5, 1, 10, 1),
    Sketcher.Constraint("Radius", 1, 8.0),
    Sketcher.Constraint("Diameter", 0, 5.3),
    Sketcher.Constraint("DistanceY", 1, 3, -1, 1, 25.0),
    Sketcher.Constraint("DistanceX", 6, 3, 1, 3, 79.0),
    Sketcher.Constraint("DistanceY", 1, 1, 3, 3, 1.5376),
    Sketcher.Constraint("DistanceX", 5, 3, 2, 1, 1.5376),
])
pocket4 = body.newObject("PartDesign::Pocket", "Pocket003")
pocket4.Profile = sketch7
pocket4.Length = 33

# Sketch on XZ plane
sketch8 = body.newObject("Sketcher::SketchObject", "Sketch007")
sketch8.AttachmentSupport = (doc.getObject("XZ_Plane"), [""])
sketch8.MapMode = "FlatFace"
sketch8.AttachmentOffset = App.Placement(App.Vector(0, 0, -1), App.Rotation())
sketch8.addGeometry([
    Part.Circle(App.Vector(-31.8, 0, 0), App.Vector(0, 0, 1), 3),  # 0
    Part.Circle(App.Vector(-31.8, 0, 0), App.Vector(0, 0, 1), 1.2),  # 1
    Part.Circle(App.Vector(31.8, 0, 0), App.Vector(0, 0, 1), 3),  # 2
    Part.Circle(App.Vector(31.8, 0, 0), App.Vector(0, 0, 1), 1.2),  # 3
    Part.Circle(App.Vector(-31.8, -20, 0), App.Vector(0, 0, 1), 2),  # 4
    Part.Circle(App.Vector(31.8, -17.9, 0), App.Vector(0, 0, 1), 2),  # 5
    Part.Circle(App.Vector(31.8, 17.9, 0), App.Vector(0, 0, 1), 2),  # 6
    Part.Circle(App.Vector(-31.8, 20, 0), App.Vector(0, 0, 1), 2),  # 7
], False)
sketch8.addConstraint([
    Sketcher.Constraint("Coincident", 1, 3, 0, 3),
    Sketcher.Constraint("Coincident", 3, 3, 2, 3),
    Sketcher.Constraint("Equal", 0, 2),
    Sketcher.Constraint("Equal", 1, 3),
    Sketcher.Constraint("Equal", 4, 5),
    Sketcher.Constraint("Equal", 5, 6),
    Sketcher.Constraint("Equal", 6, 7),
    Sketcher.Constraint("Symmetric", 0, 3, 2, 3, -1, 1),
    Sketcher.Constraint("Symmetric", 5, 3, 6, 3, -1),
    Sketcher.Constraint("Symmetric", 4, 3, 7, 3, -1),
    Sketcher.Constraint("PointOnObject", 0, 3, -1),
    Sketcher.Constraint("Vertical", 1, 3, 4, 3),
    Sketcher.Constraint("Vertical", 3, 3, 5, 3),
    Sketcher.Constraint("Diameter", 0, 6.0),
    Sketcher.Constraint("Diameter", 4, 4.0),
    Sketcher.Constraint("Diameter", 1, 2.5),
    Sketcher.Constraint("DistanceY", 4, 3, -1, 1, 20.0),
    Sketcher.Constraint("DistanceX", 0, 3, -1, 1, 31.8),
    Sketcher.Constraint("DistanceY", 5, 3, -1, 1, 17.899378),
])
pad4 = body.newObject("PartDesign::Pad", "Pad003")
pad4.Profile = sketch8
pad4.Length = 2.5
pad4.Reversed = True

# Sketch on XZ plane
sketch9 = body.newObject("Sketcher::SketchObject", "Sketch008")
sketch9.AttachmentSupport = (doc.getObject("XZ_Plane"), [""])
sketch9.MapMode = "FlatFace"
sketch9.AttachmentOffset = App.Placement(App.Vector(0, 0, -1), App.Rotation())
sketch9.addGeometry([
    Part.Circle(App.Vector(-31.8, 0, 0), App.Vector(0, 0, 1), 1.2),
    Part.Circle(App.Vector(31.8, 0, 0), App.Vector(0, 0, 1), 1.2),
], False)
sketch9.addConstraint([
    Sketcher.Constraint("Equal", 0, 1),
    Sketcher.Constraint("Symmetric", 0, 3, 1, 3, -1, 1),
    Sketcher.Constraint("PointOnObject", 0, 3, -1),
    Sketcher.Constraint("Diameter", 0, 2.5),
    Sketcher.Constraint("DistanceX", 0, 3, -1, 1, 31.8),
])
pocket5 = body.newObject("PartDesign::Pocket", "Pocket004")
pocket5.Profile = sketch9
pocket5.Type = "ThroughAll"
pocket5.Reversed = True

# Sketch on XZ plane
sketch10 = body.newObject("Sketcher::SketchObject", "Sketch009")
sketch10.AttachmentSupport = (doc.getObject("XZ_Plane"), [""])
sketch10.MapMode = "FlatFace"
sketch10.addGeometry([
    Part.Circle(App.Vector(-31.8, 0, 0), App.Vector(0, 0, 1), 2),
    Part.Circle(App.Vector(-31.8, 0, 0), App.Vector(0, 0, 1), 1.2),
    Part.Circle(App.Vector(31.8, 0, 0), App.Vector(0, 0, 1), 2),
    Part.Circle(App.Vector(31.8, 0, 0), App.Vector(0, 0, 1), 1.2),
], False)
sketch10.addConstraint([
    Sketcher.Constraint("Coincident", 1, 3, 0, 3),
    Sketcher.Constraint("Coincident", 3, 3, 2, 3),
    Sketcher.Constraint("Equal", 0, 2),
    Sketcher.Constraint("Equal", 1, 3),
    Sketcher.Constraint("Symmetric", 0, 3, 2, 3, -1, 1),
    Sketcher.Constraint("PointOnObject", 0, 3, -1),
    Sketcher.Constraint("Diameter", 0, 4.0),
    Sketcher.Constraint("Diameter", 1, 2.5),
    Sketcher.Constraint("DistanceX", 0, 3, -1, 1, 31.8),
])
pocket6 = body.newObject("PartDesign::Pocket", "Pocket005")
pocket6.Profile = sketch10
pocket6.Length = 2

doc.recompute()
